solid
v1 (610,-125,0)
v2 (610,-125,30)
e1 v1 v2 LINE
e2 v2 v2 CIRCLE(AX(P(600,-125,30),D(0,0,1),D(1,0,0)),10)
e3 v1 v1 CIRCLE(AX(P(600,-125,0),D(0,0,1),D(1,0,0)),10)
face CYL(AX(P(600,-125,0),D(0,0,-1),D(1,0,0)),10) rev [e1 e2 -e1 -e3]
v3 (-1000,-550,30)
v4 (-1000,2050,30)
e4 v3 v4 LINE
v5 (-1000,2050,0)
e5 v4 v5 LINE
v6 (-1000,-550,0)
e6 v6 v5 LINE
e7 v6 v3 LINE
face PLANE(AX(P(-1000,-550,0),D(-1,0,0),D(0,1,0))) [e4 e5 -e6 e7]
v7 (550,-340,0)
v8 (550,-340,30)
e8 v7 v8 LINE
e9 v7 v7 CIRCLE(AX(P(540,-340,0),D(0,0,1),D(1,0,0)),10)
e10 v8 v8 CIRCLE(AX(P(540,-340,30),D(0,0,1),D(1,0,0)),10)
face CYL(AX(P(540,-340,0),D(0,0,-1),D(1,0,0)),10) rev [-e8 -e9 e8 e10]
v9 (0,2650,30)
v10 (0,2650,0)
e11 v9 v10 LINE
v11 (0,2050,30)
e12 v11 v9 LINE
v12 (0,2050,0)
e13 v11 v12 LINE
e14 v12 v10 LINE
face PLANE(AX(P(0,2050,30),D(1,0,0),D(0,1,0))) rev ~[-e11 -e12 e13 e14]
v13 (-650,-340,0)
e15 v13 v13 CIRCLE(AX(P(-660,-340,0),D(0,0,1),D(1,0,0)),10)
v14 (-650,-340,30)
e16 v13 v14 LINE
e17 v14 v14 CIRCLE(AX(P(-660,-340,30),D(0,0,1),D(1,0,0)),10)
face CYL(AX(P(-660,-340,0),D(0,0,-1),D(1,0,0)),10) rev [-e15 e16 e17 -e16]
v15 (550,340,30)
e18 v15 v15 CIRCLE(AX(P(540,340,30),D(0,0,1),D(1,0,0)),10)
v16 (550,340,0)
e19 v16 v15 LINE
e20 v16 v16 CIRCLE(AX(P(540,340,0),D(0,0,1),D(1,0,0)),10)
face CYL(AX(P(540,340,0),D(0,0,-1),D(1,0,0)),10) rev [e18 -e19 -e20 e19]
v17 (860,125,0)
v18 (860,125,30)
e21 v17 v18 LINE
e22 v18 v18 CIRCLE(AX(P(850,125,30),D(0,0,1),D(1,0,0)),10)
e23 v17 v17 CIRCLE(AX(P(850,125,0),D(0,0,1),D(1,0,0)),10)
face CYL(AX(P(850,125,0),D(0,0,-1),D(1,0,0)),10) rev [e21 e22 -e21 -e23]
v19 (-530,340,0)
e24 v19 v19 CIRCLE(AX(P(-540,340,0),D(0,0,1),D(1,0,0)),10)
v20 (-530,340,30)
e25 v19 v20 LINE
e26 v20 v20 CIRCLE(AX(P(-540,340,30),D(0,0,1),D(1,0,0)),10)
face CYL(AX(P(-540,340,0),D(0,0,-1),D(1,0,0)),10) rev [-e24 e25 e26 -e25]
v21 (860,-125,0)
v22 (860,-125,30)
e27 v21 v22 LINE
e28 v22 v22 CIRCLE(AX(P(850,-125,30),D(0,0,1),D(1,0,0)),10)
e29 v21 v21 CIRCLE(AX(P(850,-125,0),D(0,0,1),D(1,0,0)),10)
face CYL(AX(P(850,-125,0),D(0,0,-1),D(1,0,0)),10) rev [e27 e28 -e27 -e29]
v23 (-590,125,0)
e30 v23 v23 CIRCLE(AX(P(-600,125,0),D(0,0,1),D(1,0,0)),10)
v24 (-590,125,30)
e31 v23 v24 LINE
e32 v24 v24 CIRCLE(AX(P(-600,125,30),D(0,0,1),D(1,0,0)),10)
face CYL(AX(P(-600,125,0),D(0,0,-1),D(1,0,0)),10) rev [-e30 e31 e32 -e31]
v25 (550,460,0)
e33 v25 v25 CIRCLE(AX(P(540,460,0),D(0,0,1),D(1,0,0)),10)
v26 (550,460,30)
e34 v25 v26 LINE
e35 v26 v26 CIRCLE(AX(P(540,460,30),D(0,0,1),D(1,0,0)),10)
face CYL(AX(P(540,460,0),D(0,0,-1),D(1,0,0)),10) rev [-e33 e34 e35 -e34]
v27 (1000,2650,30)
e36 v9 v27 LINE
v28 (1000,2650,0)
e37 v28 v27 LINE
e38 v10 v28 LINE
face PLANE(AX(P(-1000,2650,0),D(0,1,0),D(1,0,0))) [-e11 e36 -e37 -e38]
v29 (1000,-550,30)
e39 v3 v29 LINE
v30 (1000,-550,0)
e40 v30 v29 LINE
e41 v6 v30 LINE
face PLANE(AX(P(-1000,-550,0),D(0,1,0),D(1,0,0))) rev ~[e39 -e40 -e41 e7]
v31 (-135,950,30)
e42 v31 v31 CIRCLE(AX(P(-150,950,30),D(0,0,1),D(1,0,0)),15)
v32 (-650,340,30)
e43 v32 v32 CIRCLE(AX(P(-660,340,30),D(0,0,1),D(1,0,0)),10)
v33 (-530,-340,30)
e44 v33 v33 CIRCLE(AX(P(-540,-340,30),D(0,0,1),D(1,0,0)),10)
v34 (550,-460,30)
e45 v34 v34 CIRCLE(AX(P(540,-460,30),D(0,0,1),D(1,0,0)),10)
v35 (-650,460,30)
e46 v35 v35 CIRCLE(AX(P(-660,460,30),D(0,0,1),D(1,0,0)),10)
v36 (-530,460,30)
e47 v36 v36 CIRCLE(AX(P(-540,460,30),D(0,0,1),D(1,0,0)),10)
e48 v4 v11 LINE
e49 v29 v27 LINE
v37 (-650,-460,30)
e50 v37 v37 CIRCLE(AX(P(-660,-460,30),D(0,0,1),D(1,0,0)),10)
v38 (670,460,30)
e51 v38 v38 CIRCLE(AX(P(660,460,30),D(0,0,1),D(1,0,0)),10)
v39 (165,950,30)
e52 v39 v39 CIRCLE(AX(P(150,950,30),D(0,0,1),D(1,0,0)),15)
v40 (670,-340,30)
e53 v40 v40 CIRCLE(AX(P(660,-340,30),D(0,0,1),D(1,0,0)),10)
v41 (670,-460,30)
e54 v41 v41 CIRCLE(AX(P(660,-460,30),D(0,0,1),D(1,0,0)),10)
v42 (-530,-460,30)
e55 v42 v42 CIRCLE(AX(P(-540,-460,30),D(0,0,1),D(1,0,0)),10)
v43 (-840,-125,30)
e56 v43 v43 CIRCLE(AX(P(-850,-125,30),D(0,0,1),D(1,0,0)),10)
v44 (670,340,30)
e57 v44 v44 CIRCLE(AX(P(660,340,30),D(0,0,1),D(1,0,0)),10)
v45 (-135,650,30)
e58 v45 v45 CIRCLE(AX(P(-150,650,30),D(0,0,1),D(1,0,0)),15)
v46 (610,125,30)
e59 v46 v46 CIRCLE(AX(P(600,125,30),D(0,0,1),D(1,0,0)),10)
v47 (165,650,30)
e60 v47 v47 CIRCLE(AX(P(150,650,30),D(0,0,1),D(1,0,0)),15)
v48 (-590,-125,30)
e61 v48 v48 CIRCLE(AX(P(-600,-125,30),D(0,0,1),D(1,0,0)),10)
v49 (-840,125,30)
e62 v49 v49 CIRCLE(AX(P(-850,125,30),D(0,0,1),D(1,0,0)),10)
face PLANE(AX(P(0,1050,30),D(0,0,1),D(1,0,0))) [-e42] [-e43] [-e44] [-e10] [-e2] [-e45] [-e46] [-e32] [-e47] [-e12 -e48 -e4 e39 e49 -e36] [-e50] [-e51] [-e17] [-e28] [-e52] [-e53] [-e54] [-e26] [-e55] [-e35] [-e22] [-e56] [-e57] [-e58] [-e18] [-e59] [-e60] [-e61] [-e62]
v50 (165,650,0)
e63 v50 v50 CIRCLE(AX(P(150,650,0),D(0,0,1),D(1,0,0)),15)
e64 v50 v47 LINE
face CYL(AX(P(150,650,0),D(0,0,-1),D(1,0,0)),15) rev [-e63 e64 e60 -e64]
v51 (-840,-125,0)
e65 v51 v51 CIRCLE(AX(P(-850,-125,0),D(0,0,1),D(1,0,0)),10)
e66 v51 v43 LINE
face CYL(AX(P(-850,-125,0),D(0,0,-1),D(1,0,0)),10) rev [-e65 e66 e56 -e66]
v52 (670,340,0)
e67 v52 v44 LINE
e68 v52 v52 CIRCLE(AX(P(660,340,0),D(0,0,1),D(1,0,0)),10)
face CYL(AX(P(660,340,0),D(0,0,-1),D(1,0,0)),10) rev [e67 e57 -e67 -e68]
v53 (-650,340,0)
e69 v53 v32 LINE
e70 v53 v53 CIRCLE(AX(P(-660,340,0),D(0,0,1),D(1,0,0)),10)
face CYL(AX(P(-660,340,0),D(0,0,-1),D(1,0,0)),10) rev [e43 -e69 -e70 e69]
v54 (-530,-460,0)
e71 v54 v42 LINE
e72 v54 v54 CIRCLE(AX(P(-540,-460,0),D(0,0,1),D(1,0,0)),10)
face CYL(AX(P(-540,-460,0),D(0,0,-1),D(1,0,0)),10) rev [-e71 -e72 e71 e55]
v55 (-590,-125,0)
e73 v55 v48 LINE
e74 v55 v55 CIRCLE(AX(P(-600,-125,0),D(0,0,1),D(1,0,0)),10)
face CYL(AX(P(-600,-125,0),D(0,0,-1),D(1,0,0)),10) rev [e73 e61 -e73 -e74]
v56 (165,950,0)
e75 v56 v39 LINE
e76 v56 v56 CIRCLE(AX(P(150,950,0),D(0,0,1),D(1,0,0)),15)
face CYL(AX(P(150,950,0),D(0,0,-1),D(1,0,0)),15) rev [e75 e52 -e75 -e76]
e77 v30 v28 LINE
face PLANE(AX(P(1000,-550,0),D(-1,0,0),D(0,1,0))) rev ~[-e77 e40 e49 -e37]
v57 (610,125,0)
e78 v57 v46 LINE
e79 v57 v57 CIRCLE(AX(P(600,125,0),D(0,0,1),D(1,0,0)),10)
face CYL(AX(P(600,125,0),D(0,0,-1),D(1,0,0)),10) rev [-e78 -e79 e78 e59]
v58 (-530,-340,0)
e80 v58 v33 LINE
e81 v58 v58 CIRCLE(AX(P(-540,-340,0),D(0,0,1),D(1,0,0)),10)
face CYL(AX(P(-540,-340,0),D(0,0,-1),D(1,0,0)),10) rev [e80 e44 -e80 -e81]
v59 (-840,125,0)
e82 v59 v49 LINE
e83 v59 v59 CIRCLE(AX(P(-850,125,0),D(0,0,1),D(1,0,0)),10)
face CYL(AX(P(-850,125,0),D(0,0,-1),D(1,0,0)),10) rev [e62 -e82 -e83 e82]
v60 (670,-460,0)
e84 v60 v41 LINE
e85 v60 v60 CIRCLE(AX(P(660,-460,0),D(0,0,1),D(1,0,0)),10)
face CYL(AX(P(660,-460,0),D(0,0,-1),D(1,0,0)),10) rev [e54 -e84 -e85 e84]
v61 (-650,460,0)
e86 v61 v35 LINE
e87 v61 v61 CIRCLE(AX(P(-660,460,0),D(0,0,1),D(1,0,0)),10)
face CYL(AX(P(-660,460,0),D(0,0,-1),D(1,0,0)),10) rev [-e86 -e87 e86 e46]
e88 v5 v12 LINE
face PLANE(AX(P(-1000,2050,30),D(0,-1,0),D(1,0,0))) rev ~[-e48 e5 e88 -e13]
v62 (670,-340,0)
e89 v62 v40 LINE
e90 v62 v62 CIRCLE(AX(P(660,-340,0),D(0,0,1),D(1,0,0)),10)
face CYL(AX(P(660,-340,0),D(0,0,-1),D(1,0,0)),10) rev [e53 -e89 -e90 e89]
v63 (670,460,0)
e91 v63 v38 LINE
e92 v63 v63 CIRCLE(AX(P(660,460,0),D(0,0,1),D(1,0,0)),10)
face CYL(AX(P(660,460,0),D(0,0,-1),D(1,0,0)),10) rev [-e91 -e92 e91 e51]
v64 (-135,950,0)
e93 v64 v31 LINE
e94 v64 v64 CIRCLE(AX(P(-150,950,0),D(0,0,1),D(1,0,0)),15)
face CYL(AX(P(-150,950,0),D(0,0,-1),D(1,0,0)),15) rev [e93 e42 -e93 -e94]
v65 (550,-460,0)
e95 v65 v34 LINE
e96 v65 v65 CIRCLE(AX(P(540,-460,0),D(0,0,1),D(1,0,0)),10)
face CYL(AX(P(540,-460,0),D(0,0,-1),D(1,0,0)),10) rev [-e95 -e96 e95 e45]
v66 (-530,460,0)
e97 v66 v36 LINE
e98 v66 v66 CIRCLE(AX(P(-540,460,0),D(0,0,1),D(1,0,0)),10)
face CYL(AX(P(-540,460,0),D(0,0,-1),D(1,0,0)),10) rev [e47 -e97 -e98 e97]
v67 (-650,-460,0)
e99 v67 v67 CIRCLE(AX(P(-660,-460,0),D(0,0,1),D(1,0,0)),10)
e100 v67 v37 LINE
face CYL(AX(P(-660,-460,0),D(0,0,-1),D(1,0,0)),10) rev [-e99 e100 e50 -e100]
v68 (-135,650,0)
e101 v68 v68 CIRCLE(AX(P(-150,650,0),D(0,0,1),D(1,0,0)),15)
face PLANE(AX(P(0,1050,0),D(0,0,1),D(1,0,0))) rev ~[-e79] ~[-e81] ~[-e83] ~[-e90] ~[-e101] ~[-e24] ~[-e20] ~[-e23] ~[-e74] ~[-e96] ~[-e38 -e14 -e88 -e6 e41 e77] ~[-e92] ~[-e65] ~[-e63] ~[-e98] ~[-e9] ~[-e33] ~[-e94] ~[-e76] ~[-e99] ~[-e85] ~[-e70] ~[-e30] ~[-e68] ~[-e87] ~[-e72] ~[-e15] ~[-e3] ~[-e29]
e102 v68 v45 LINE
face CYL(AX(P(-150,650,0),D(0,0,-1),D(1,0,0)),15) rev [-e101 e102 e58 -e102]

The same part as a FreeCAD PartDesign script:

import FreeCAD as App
import Part
import Sketcher
Q = App.Units.Quantity

doc = App.newDocument("Part")
body = doc.addObject("PartDesign::Body", "Body")

# Sketch on XY plane
sketch1 = body.newObject("Sketcher::SketchObject", "Sketch")
sketch1.AttachmentSupport = (doc.getObject("XY_Plane"), [""])
sketch1.MapMode = "FlatFace"
sketch1.addGeometry([
    Part.LineSegment(App.Vector(-1000, 2650, 0), App.Vector(-1000, -550, 0)),  # 0
    Part.LineSegment(App.Vector(-1000, -550, 0), App.Vector(1000, -550, 0)),  # 1
    Part.LineSegment(App.Vector(1000, -550, 0), App.Vector(1000, 2650, 0)),  # 2
    Part.LineSegment(App.Vector(1000, 2650, 0), App.Vector(-1000, 2650, 0)),  # 3
    Part.Circle(App.Vector(-660, -460, 0), App.Vector(0, 0, 1), 10),  # 4
    Part.Circle(App.Vector(-660, -340, 0), App.Vector(0, 0, 1), 10),  # 5
    Part.Circle(App.Vector(-540, -460, 0), App.Vector(0, 0, 1), 10),  # 6
    Part.Circle(App.Vector(-540, -340, 0), App.Vector(0, 0, 1), 10),  # 7
    Part.Circle(App.Vector(-850, -125, 0), App.Vector(0, 0, 1), 10),  # 8
    Part.Circle(App.Vector(-600, -125, 0), App.Vector(0, 0, 1), 10),  # 9
    Part.Circle(App.Vector(-850, 125, 0), App.Vector(0, 0, 1), 10),  # 10
    Part.Circle(App.Vector(-600, 125, 0), App.Vector(0, 0, 1), 10),  # 11
    Part.Circle(App.Vector(540, -460, 0), App.Vector(0, 0, 1), 10),  # 12
    Part.Circle(App.Vector(540, -340, 0), App.Vector(0, 0, 1), 10),  # 13
    Part.Circle(App.Vector(660, -460, 0), App.Vector(0, 0, 1), 10),  # 14
    Part.Circle(App.Vector(660, -340, 0), App.Vector(0, 0, 1), 10),  # 15
    Part.Circle(App.Vector(600, -125, 0), App.Vector(0, 0, 1), 10),  # 16
    Part.Circle(App.Vector(850, -125, 0), App.Vector(0, 0, 1), 10),  # 17
    Part.Circle(App.Vector(600, 125, 0), App.Vector(0, 0, 1), 10),  # 18
    Part.Circle(App.Vector(850, 125, 0), App.Vector(0, 0, 1), 10),  # 19
    Part.Circle(App.Vector(-660, 340, 0), App.Vector(0, 0, 1), 10),  # 20
    Part.Circle(App.Vector(-540, 340, 0), App.Vector(0, 0, 1), 10),  # 21
    Part.Circle(App.Vector(-660, 460, 0), App.Vector(0, 0, 1), 10),  # 22
    Part.Circle(App.Vector(-540, 460, 0), App.Vector(0, 0, 1), 10),  # 23
    Part.Circle(App.Vector(-150, 650, 0), App.Vector(0, 0, 1), 15),  # 24
    Part.Circle(App.Vector(-150, 950, 0), App.Vector(0, 0, 1), 15),  # 25
    Part.Circle(App.Vector(540, 340, 0), App.Vector(0, 0, 1), 10),  # 26
    Part.Circle(App.Vector(660, 340, 0), App.Vector(0, 0, 1), 10),  # 27
    Part.Circle(App.Vector(540, 460, 0), App.Vector(0, 0, 1), 10),  # 28
    Part.Circle(App.Vector(660, 460, 0), App.Vector(0, 0, 1), 10),  # 29
    Part.Circle(App.Vector(150, 650, 0), App.Vector(0, 0, 1), 15),  # 30
    Part.Circle(App.Vector(150, 950, 0), App.Vector(0, 0, 1), 15),  # 31
], False)
sketch1.addConstraint([
    Sketcher.Constraint("Coincident", 0, 2, 1, 1),
    Sketcher.Constraint("Coincident", 1, 2, 2, 1),
    Sketcher.Constraint("Coincident", 2, 2, 3, 1),
    Sketcher.Constraint("Coincident", 3, 2, 0, 1),
    Sketcher.Constraint("Vertical", 0),
    Sketcher.Constraint("Horizontal", 1),
    Sketcher.Constraint("Vertical", 2),
    Sketcher.Constraint("Horizontal", 3),
    Sketcher.Constraint("Equal", 4, 5),
    Sketcher.Constraint("Equal", 5, 6),
    Sketcher.Constraint("Equal", 6, 7),
    Sketcher.Constraint("Equal", 7, 8),
    Sketcher.Constraint("Equal", 8, 9),
    Sketcher.Constraint("Equal", 9, 10),
    Sketcher.Constraint("Equal", 10, 11),
    Sketcher.Constraint("Equal", 11, 12),
    Sketcher.Constraint("Equal", 12, 13),
    Sketcher.Constraint("Equal", 13, 14),
    Sketcher.Constraint("Equal", 14, 15),
    Sketcher.Constraint("Equal", 15, 16),
    Sketcher.Constraint("Equal", 16, 17),
    Sketcher.Constraint("Equal", 17, 18),
    Sketcher.Constraint("Equal", 18, 19),
    Sketcher.Constraint("Equal", 19, 20),
    Sketcher.Constraint("Equal", 20, 21),
    Sketcher.Constraint("Equal", 21, 22),
    Sketcher.Constraint("Equal", 22, 23),
    Sketcher.Constraint("Equal", 24, 25),
    Sketcher.Constraint("Equal", 23, 26),
    Sketcher.Constraint("Equal", 26, 27),
    Sketcher.Constraint("Equal", 27, 28),
    Sketcher.Constraint("Equal", 28, 29),
    Sketcher.Constraint("Equal", 25, 30),
    Sketcher.Constraint("Equal", 30, 31),
    Sketcher.Constraint("Symmetric", 11, 3, 16, 3, -1, 1),
    Sketcher.Constraint("Symmetric", 10, 3, 17, 3, -1, 1),
    Sketcher.Constraint("Symmetric", 9, 3, 18, 3, -1, 1),
    Sketcher.Constraint("Symmetric", 8, 3, 19, 3, -1, 1),
    Sketcher.Constraint("Symmetric", 15, 3, 20, 3, -1, 1),
    Sketcher.Constraint("Symmetric", 13, 3, 21, 3, -1, 1),
    Sketcher.Constraint("Symmetric", 14, 3, 22, 3, -1, 1),
    Sketcher.Constraint("Symmetric", 12, 3, 23, 3, -1, 1),
    Sketcher.Constraint("Symmetric", 7, 3, 26, 3, -1, 1),
    Sketcher.Constraint("Symmetric", 5, 3, 27, 3, -1, 1),
    Sketcher.Constraint("Symmetric", 6, 3, 28, 3, -1, 1),
    Sketcher.Constraint("Symmetric", 4, 3, 29, 3, -1, 1),
    Sketcher.Constraint("Symmetric", 6, 3, 12, 3, -2),
    Sketcher.Constraint("Symmetric", 7, 3, 13, 3, -2),
    Sketcher.Constraint("Symmetric", 4, 3, 14, 3, -2),
    Sketcher.Constraint("Symmetric", 5, 3, 15, 3, -2),
    Sketcher.Constraint("Symmetric", 9, 3, 16, 3, -2),
    Sketcher.Constraint("Symmetric", 8, 3, 17, 3, -2),
    Sketcher.Constraint("Symmetric", 24, 3, 30, 3, -2),
    Sketcher.Constraint("Symmetric", 25, 3, 31, 3, -2),
    Sketcher.Constraint("Horizontal", 4, 3, 6, 3),
    Sketcher.Constraint("Horizontal", 5, 3, 7, 3),
    Sketcher.Constraint("Horizontal", 8, 3, 9, 3),
    Sketcher.Constraint("Vertical", 4, 3, 5, 3),
    Sketcher.Constraint("Vertical", 6, 3, 7, 3),
    Sketcher.Constraint("Vertical", 24, 3, 25, 3),
    Sketcher.Constraint("Diameter", 4, Q("20 mm")),
    Sketcher.Constraint("Diameter", 24, Q("30 mm")),
    Sketcher.Constraint("DistanceX", 1, 1, 1, 2, Q("2000 mm")),
    Sketcher.Constraint("DistanceY", 0, 2, 0, 1, Q("3200 mm")),
    Sketcher.Constraint("DistanceX", 4, 3, -1, 1, Q("660 mm")),
    Sketcher.Constraint("DistanceY", 4, 3, -1, 1, Q("460 mm")),
    Sketcher.Constraint("DistanceY", 5, 3, -1, 1, Q("340 mm")),
    Sketcher.Constraint("DistanceX", 6, 3, -1, 1, Q("540 mm")),
    Sketcher.Constraint("DistanceX", 8, 3, -1, 1, Q("850 mm")),
    Sketcher.Constraint("DistanceY", 8, 3, -1, 1, Q("125 mm")),
    Sketcher.Constraint("DistanceX", 9, 3, -1, 1, Q("600 mm")),
    Sketcher.Constraint("DistanceX", 24, 3, -1, 1, Q("150 mm")),
    Sketcher.Constraint("DistanceY", -1, 1, 24, 3, Q("650 mm")),
    Sketcher.Constraint("DistanceY", -1, 1, 25, 3, Q("950 mm")),
    Sketcher.Constraint("DistanceX", 0, 2, -1, 1, Q("1000 mm")),
    Sketcher.Constraint("DistanceY", 0, 2, -1, 1, Q("550 mm")),
])
pad1 = body.newObject("PartDesign::Pad", "Pad")
pad1.Profile = sketch1
pad1.Length = 30

# Sketch on XY plane
sketch2 = body.newObject("Sketcher::SketchObject", "Sketch001")
sketch2.AttachmentSupport = (doc.getObject("XY_Plane"), [""])
sketch2.MapMode = "FlatFace"
sketch2.AttachmentOffset = App.Placement(App.Vector(0, 0, 30), App.Rotation())
sketch2.addGeometry([
    Part.LineSegment(App.Vector(-1000, 2650, 0), App.Vector(-1000, 2050, 0)),
    Part.LineSegment(App.Vector(-1000, 2050, 0), App.Vector(0, 2050, 0)),
    Part.LineSegment(App.Vector(0, 2050, 0), App.Vector(0, 2650, 0)),
    Part.LineSegment(App.Vector(0, 2650, 0), App.Vector(-1000, 2650, 0)),
], False)
sketch2.addConstraint([
    Sketcher.Constraint("Coincident", 0, 2, 1, 1),
    Sketcher.Constraint("Coincident", 1, 2, 2, 1),
    Sketcher.Constraint("Coincident", 2, 2, 3, 1),
    Sketcher.Constraint("Coincident", 3, 2, 0, 1),
    Sketcher.Constraint("Vertical", 0),
    Sketcher.Constraint("Horizontal", 1),
    Sketcher.Constraint("Vertical", 2),
    Sketcher.Constraint("Horizontal", 3),
    Sketcher.Constraint("PointOnObject", 1, 2, -2),
    Sketcher.Constraint("DistanceX", 1, 1, 1, 2, Q("1000 mm")),
    Sketcher.Constraint("DistanceY", 0, 2, 0, 1, Q("600 mm")),
    Sketcher.Constraint("DistanceY", -1, 1, 0, 2, Q("2050 mm")),
])
pocket1 = body.newObject("PartDesign::Pocket", "Pocket")
pocket1.Profile = sketch2
pocket1.Length = 30

doc.recompute()
